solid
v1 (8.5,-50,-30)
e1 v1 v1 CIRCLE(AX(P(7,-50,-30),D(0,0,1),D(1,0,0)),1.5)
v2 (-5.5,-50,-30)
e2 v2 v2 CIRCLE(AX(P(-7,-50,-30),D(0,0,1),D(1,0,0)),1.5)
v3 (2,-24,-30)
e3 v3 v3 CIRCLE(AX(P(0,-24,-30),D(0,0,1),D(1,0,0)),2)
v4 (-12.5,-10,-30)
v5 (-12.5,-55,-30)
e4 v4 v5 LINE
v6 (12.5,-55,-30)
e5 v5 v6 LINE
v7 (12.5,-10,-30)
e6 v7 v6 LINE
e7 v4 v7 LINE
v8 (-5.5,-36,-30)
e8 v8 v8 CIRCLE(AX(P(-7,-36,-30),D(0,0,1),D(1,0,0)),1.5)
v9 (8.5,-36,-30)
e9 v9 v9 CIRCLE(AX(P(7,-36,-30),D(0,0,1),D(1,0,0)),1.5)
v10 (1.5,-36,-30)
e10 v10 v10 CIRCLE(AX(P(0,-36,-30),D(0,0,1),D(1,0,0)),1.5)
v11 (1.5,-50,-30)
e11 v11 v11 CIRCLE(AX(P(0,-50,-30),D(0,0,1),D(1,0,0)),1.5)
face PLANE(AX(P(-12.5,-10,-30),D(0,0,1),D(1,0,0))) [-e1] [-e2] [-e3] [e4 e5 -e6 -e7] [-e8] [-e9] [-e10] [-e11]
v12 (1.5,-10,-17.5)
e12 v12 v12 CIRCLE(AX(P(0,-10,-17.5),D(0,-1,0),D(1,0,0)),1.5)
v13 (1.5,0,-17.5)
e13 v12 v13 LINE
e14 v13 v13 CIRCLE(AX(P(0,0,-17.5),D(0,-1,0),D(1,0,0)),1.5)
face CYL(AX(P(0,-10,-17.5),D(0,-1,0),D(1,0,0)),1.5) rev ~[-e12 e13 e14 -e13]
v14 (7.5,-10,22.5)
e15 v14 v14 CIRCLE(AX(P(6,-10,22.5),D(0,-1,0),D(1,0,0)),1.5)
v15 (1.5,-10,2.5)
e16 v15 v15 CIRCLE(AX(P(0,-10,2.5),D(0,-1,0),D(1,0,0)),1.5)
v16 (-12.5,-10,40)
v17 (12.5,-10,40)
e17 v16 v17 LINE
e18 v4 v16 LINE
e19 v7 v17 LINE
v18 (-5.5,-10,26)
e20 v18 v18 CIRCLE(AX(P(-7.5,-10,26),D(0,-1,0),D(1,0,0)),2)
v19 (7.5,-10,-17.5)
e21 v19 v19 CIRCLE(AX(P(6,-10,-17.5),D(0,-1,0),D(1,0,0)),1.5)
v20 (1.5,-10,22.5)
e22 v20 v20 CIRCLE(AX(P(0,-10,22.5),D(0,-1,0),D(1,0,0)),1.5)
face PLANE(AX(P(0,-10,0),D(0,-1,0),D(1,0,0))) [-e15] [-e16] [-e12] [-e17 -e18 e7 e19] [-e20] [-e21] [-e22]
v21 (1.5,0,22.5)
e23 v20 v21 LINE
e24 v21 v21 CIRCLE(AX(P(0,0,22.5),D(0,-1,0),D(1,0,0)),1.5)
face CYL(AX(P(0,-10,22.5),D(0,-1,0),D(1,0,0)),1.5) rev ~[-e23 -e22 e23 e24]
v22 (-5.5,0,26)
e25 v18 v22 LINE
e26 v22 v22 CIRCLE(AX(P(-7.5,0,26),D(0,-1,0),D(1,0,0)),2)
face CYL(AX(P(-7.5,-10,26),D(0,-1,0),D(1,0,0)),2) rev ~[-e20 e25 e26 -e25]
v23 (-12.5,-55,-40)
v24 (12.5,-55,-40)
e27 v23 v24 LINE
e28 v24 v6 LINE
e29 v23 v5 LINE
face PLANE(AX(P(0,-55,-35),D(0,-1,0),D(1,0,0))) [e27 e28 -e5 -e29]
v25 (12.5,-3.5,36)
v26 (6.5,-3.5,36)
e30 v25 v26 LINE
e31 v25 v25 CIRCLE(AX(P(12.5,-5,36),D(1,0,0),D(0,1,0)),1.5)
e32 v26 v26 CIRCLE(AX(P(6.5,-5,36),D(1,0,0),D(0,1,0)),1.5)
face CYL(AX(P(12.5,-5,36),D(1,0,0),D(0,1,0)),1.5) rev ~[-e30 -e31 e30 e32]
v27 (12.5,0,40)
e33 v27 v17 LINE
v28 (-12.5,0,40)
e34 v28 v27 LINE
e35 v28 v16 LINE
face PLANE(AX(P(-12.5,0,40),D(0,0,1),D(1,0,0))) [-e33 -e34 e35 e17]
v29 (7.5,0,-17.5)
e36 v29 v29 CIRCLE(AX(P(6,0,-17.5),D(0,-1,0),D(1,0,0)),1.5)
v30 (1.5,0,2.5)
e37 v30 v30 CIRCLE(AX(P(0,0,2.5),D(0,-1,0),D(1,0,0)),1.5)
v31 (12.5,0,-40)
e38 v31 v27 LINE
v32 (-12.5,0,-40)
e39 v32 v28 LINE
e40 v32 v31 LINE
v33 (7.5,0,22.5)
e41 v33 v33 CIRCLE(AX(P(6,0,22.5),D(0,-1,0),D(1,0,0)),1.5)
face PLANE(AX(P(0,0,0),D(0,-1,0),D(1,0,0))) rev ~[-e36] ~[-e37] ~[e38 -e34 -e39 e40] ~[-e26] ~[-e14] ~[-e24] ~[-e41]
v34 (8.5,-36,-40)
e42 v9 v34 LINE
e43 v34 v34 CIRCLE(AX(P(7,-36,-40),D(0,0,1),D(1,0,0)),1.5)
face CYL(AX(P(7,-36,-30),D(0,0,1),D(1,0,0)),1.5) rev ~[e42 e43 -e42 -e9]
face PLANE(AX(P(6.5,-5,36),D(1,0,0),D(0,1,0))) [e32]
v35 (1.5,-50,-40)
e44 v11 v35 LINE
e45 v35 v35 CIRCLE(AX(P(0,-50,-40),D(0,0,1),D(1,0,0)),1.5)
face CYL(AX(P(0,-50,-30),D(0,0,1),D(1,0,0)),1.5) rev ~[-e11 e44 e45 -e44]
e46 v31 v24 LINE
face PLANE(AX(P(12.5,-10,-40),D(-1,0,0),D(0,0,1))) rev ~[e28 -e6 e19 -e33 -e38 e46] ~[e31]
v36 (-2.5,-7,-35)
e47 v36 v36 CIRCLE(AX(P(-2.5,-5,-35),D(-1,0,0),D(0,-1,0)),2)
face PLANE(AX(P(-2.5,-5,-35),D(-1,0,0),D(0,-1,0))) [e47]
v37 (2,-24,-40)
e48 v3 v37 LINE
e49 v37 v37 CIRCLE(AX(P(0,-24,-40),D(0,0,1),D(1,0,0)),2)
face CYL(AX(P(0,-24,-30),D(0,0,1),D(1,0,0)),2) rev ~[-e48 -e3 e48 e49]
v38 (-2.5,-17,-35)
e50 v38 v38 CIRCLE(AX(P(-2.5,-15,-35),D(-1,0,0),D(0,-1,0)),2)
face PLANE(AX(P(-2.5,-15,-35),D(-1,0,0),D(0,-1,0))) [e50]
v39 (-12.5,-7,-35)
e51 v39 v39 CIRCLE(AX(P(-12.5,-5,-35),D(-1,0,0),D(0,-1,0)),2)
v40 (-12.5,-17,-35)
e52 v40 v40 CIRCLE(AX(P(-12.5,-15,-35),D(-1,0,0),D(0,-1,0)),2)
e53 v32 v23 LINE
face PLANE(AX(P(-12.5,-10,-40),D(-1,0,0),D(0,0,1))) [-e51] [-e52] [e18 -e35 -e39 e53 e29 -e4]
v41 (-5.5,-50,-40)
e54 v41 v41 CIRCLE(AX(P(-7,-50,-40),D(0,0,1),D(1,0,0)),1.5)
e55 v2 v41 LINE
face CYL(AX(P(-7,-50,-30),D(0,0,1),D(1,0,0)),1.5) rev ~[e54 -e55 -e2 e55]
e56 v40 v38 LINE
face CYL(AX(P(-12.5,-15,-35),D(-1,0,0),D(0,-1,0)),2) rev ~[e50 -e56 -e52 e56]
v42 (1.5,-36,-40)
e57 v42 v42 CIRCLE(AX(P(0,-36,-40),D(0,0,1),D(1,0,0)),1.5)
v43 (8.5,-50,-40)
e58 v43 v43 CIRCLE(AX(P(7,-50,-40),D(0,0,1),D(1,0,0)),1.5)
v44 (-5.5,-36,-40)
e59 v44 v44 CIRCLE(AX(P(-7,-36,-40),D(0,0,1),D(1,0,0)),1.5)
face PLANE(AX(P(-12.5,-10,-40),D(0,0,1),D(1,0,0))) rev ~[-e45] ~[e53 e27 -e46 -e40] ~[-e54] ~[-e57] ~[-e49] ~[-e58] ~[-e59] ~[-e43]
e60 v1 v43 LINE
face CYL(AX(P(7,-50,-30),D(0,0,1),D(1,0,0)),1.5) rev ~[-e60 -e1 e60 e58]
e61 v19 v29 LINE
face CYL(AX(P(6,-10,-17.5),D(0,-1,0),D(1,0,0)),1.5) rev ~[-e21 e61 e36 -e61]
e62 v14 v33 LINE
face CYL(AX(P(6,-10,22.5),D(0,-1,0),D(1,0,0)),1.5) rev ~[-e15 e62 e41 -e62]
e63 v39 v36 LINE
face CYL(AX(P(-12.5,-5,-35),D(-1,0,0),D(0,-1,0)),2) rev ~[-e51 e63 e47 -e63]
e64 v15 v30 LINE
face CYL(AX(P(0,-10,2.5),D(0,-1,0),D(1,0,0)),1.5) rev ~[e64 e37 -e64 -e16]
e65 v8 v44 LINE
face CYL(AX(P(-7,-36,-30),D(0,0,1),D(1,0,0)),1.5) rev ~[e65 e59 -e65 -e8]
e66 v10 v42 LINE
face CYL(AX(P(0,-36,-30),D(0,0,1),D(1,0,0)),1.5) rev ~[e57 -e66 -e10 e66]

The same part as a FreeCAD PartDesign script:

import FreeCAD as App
import Part
import Sketcher

V = App.Vector
Q = App.Units.Quantity

doc = App.newDocument("Part")
body = doc.addObject("PartDesign::Body", "Body")

# Sketch on XZ plane
sketch1 = body.newObject("Sketcher::SketchObject", "Sketch")
sketch1.AttachmentSupport = (doc.getObject("XZ_Plane"), [""])
sketch1.MapMode = "FlatFace"
sketch1.addGeometry([
    Part.LineSegment(V(-12.5, 40, 0), V(-12.5, -40, 0)),
    Part.LineSegment(V(-12.5, -40, 0), V(12.5, -40, 0)),
    Part.LineSegment(V(12.5, -40, 0), V(12.5, 40, 0)),
    Part.LineSegment(V(12.5, 40, 0), V(-12.5, 40, 0)),
], False)
sketch1.addConstraint([
    Sketcher.Constraint("Coincident", 0, 2, 1, 1),
    Sketcher.Constraint("Coincident", 1, 2, 2, 1),
    Sketcher.Constraint("Coincident", 2, 2, 3, 1),
    Sketcher.Constraint("Coincident", 3, 2, 0, 1),
    Sketcher.Constraint("Vertical", 0),
    Sketcher.Constraint("Horizontal", 1),
    Sketcher.Constraint("Vertical", 2),
    Sketcher.Constraint("Horizontal", 3),
    Sketcher.Constraint("Symmetric", 0, 2, 2, 2, -1, 1),
    Sketcher.Constraint("DistanceX", 1, 1, 1, 2, Q("25 mm")),
    Sketcher.Constraint("DistanceY", 0, 2, 0, 1, Q("80 mm")),
])
pad1 = body.newObject("PartDesign::Pad", "Pad")
pad1.Profile = sketch1
pad1.Length = 10

# Sketch on XZ plane
sketch2 = body.newObject("Sketcher::SketchObject", "Sketch001")
sketch2.AttachmentSupport = (doc.getObject("XZ_Plane"), [""])
sketch2.MapMode = "FlatFace"
sketch2.AttachmentOffset = App.Placement(V(0, 0, 10), App.Rotation())
sketch2.addGeometry([
    Part.LineSegment(V(-12.5, -30, 0), V(-12.5, -40, 0)),
    Part.LineSegment(V(-12.5, -40, 0), V(12.5, -40, 0)),
    Part.LineSegment(V(12.5, -40, 0), V(12.5, -30, 0)),
    Part.LineSegment(V(12.5, -30, 0), V(-12.5, -30, 0)),
], False)
sketch2.addConstraint([
    Sketcher.Constraint("Coincident", 0, 2, 1, 1),
    Sketcher.Constraint("Coincident", 1, 2, 2, 1),
    Sketcher.Constraint("Coincident", 2, 2, 3, 1),
    Sketcher.Constraint("Coincident", 3, 2, 0, 1),
    Sketcher.Constraint("Vertical", 0),
    Sketcher.Constraint("Horizontal", 1),
    Sketcher.Constraint("Vertical", 2),
    Sketcher.Constraint("Horizontal", 3),
    Sketcher.Constraint("DistanceX", 1, 1, 1, 2, Q("25 mm")),
    Sketcher.Constraint("DistanceY", 0, 2, 0, 1, Q("10 mm")),
    Sketcher.Constraint("DistanceY", 0, 2, -1, 1, Q("40 mm")),
    Sketcher.Constraint("DistanceX", 0, 2, -1, 1, Q("12.5 mm")),
])
pad2 = body.newObject("PartDesign::Pad", "Pad001")
pad2.Profile = sketch2
pad2.Length = 45

# Sketch on XZ plane
sketch3 = body.newObject("Sketcher::SketchObject", "Sketch002")
sketch3.AttachmentSupport = (doc.getObject("XZ_Plane"), [""])
sketch3.MapMode = "FlatFace"
sketch3.AttachmentOffset = App.Placement(V(0, 0, 10), App.Rotation())
sketch3.addGeometry([
    Part.Circle(V(-7.5, 26, 0), V(0, 0, 1), 2),  # 0
    Part.Circle(V(0, -17.5, 0), V(0, 0, 1), 1.5),  # 1
    Part.Circle(V(0, 2.5, 0), V(0, 0, 1), 1.5),  # 2
    Part.Circle(V(0, 22.5, 0), V(0, 0, 1), 1.5),  # 3
    Part.Circle(V(6, 22.5, 0), V(0, 0, 1), 1.5),  # 4
    Part.Circle(V(6, -17.5, 0), V(0, 0, 1), 1.5),  # 5
], False)
sketch3.addConstraint([
    Sketcher.Constraint("Equal", 1, 2),
    Sketcher.Constraint("Equal", 2, 3),
    Sketcher.Constraint("Equal", 3, 4),
    Sketcher.Constraint("Equal", 4, 5),
    Sketcher.Constraint("PointOnObject", 1, 3, -2),
    Sketcher.Constraint("PointOnObject", 2, 3, -2),
    Sketcher.Constraint("PointOnObject", 3, 3, -2),
    Sketcher.Constraint("Horizontal", 3, 3, 4, 3),
    Sketcher.Constraint("Horizontal", 1, 3, 5, 3),
    Sketcher.Constraint("Vertical", 4, 3, 5, 3),
    Sketcher.Constraint("Diameter", 0, Q("4 mm")),
    Sketcher.Constraint("Diameter", 1, Q("3 mm")),
    Sketcher.Constraint("DistanceY", -1, 1, 0, 3, Q("26 mm")),
    Sketcher.Constraint("DistanceX", -1, 1, 4, 3, Q("6 mm")),
    Sketcher.Constraint("DistanceY", 1, 3, 2, 3, Q("20 mm")),
    Sketcher.Constraint("DistanceY", 2, 3, 3, 3, Q("20 mm")),
    Sketcher.Constraint("DistanceX", 0, 3, -1, 1, Q("7.5 mm")),
    Sketcher.Constraint("DistanceY", 1, 3, -1, 1, Q("17.5 mm")),
])
pocket1 = body.newObject("PartDesign::Pocket", "Pocket")
pocket1.Profile = sketch3
pocket1.Type = "ThroughAll"

# Sketch on YZ plane
sketch4 = body.newObject("Sketcher::SketchObject", "Sketch003")
sketch4.AttachmentSupport = (doc.getObject("YZ_Plane"), [""])
sketch4.MapMode = "FlatFace"
sketch4.AttachmentOffset = App.Placement(V(0, 0, 12.5), App.Rotation())
sketch4.addGeometry(Part.Circle(V(-5, 36, 0), V(0, 0, 1), 1.5), False)
sketch4.addConstraint([
    Sketcher.Constraint("Diameter", 0, Q("3 mm")),
    Sketcher.Constraint("DistanceX", 0, 3, -1, 1, Q("5 mm")),
    Sketcher.Constraint("DistanceY", -1, 1, 0, 3, Q("36 mm")),
])
pocket2 = body.newObject("PartDesign::Pocket", "Pocket001")
pocket2.Profile = sketch4
pocket2.Length = 6

# Sketch on XY plane
sketch5 = body.newObject("Sketcher::SketchObject", "Sketch004")
sketch5.AttachmentSupport = (doc.getObject("XY_Plane"), [""])
sketch5.MapMode = "FlatFace"
sketch5.AttachmentOffset = App.Placement(V(0, 0, -30), App.Rotation())
sketch5.addGeometry([
    Part.Circle(V(0, -36, 0), V(0, 0, 1), 1.5),  # 0
    Part.Circle(V(0, -24, 0), V(0, 0, 1), 2),  # 1
    Part.Circle(V(-7, -36, 0), V(0, 0, 1), 1.5),  # 2
    Part.Circle(V(7, -36, 0), V(0, 0, 1), 1.5),  # 3
    Part.Circle(V(0, -50, 0), V(0, 0, 1), 1.5),  # 4
    Part.Circle(V(-7, -50, 0), V(0, 0, 1), 1.5),  # 5
    Part.Circle(V(7, -50, 0), V(0, 0, 1), 1.5),  # 6
], False)
sketch5.addConstraint([
    Sketcher.Constraint("Equal", 0, 2),
    Sketcher.Constraint("Equal", 2, 3),
    Sketcher.Constraint("Equal", 3, 4),
    Sketcher.Constraint("Equal", 4, 5),
    Sketcher.Constraint("Equal", 5, 6),
    Sketcher.Constraint("Symmetric", 2, 3, 3, 3, -2),
    Sketcher.Constraint("Symmetric", 5, 3, 6, 3, -2),
    Sketcher.Constraint("PointOnObject", 0, 3, -2),
    Sketcher.Constraint("PointOnObject", 1, 3, -2),
    Sketcher.Constraint("PointOnObject", 4, 3, -2),
    Sketcher.Constraint("Horizontal", 0, 3, 2, 3),
    Sketcher.Constraint("Horizontal", 4, 3, 5, 3),
    Sketcher.Constraint("Vertical", 2, 3, 5, 3),
    Sketcher.Constraint("Diameter", 0, Q("3 mm")),
    Sketcher.Constraint("Diameter", 1, Q("4 mm")),
    Sketcher.Constraint("DistanceY", 0, 3, -1, 1, Q("36 mm")),
    Sketcher.Constraint("DistanceY", 1, 3, -1, 1, Q("24 mm")),
    Sketcher.Constraint("DistanceX", 2, 3, -1, 1, Q("7 mm")),
    Sketcher.Constraint("DistanceY", 4, 3, -1, 1, Q("50 mm")),
])
pocket3 = body.newObject("PartDesign::Pocket", "Pocket002")
pocket3.Profile = sketch5
pocket3.Type = "ThroughAll"

# Sketch on YZ plane
sketch6 = body.newObject("Sketcher::SketchObject", "Sketch005")
sketch6.AttachmentSupport = (doc.getObject("YZ_Plane"), [""])
sketch6.MapMode = "FlatFace"
sketch6.AttachmentOffset = App.Placement(V(0, 0, -12.5), App.Rotation())
sketch6.addGeometry([
    Part.Circle(V(-5, -35, 0), V(0, 0, 1), 2),
    Part.Circle(V(-15, -35, 0), V(0, 0, 1), 2),
], False)
sketch6.addConstraint([
    Sketcher.Constraint("Equal", 0, 1),
    Sketcher.Constraint("Horizontal", 0, 3, 1, 3),
    Sketcher.Constraint("Diameter", 0, Q("4 mm")),
    Sketcher.Constraint("DistanceX", 0, 3, -1, 1, Q("5 mm")),
    Sketcher.Constraint("DistanceY", 0, 3, -1, 1, Q("35 mm")),
    Sketcher.Constraint("DistanceX", 1, 3, -1, 1, Q("15 mm")),
])
pocket4 = body.newObject("PartDesign::Pocket", "Pocket003")
pocket4.Profile = sketch6
pocket4.Length = 10
pocket4.Reversed = True

doc.recompute()
